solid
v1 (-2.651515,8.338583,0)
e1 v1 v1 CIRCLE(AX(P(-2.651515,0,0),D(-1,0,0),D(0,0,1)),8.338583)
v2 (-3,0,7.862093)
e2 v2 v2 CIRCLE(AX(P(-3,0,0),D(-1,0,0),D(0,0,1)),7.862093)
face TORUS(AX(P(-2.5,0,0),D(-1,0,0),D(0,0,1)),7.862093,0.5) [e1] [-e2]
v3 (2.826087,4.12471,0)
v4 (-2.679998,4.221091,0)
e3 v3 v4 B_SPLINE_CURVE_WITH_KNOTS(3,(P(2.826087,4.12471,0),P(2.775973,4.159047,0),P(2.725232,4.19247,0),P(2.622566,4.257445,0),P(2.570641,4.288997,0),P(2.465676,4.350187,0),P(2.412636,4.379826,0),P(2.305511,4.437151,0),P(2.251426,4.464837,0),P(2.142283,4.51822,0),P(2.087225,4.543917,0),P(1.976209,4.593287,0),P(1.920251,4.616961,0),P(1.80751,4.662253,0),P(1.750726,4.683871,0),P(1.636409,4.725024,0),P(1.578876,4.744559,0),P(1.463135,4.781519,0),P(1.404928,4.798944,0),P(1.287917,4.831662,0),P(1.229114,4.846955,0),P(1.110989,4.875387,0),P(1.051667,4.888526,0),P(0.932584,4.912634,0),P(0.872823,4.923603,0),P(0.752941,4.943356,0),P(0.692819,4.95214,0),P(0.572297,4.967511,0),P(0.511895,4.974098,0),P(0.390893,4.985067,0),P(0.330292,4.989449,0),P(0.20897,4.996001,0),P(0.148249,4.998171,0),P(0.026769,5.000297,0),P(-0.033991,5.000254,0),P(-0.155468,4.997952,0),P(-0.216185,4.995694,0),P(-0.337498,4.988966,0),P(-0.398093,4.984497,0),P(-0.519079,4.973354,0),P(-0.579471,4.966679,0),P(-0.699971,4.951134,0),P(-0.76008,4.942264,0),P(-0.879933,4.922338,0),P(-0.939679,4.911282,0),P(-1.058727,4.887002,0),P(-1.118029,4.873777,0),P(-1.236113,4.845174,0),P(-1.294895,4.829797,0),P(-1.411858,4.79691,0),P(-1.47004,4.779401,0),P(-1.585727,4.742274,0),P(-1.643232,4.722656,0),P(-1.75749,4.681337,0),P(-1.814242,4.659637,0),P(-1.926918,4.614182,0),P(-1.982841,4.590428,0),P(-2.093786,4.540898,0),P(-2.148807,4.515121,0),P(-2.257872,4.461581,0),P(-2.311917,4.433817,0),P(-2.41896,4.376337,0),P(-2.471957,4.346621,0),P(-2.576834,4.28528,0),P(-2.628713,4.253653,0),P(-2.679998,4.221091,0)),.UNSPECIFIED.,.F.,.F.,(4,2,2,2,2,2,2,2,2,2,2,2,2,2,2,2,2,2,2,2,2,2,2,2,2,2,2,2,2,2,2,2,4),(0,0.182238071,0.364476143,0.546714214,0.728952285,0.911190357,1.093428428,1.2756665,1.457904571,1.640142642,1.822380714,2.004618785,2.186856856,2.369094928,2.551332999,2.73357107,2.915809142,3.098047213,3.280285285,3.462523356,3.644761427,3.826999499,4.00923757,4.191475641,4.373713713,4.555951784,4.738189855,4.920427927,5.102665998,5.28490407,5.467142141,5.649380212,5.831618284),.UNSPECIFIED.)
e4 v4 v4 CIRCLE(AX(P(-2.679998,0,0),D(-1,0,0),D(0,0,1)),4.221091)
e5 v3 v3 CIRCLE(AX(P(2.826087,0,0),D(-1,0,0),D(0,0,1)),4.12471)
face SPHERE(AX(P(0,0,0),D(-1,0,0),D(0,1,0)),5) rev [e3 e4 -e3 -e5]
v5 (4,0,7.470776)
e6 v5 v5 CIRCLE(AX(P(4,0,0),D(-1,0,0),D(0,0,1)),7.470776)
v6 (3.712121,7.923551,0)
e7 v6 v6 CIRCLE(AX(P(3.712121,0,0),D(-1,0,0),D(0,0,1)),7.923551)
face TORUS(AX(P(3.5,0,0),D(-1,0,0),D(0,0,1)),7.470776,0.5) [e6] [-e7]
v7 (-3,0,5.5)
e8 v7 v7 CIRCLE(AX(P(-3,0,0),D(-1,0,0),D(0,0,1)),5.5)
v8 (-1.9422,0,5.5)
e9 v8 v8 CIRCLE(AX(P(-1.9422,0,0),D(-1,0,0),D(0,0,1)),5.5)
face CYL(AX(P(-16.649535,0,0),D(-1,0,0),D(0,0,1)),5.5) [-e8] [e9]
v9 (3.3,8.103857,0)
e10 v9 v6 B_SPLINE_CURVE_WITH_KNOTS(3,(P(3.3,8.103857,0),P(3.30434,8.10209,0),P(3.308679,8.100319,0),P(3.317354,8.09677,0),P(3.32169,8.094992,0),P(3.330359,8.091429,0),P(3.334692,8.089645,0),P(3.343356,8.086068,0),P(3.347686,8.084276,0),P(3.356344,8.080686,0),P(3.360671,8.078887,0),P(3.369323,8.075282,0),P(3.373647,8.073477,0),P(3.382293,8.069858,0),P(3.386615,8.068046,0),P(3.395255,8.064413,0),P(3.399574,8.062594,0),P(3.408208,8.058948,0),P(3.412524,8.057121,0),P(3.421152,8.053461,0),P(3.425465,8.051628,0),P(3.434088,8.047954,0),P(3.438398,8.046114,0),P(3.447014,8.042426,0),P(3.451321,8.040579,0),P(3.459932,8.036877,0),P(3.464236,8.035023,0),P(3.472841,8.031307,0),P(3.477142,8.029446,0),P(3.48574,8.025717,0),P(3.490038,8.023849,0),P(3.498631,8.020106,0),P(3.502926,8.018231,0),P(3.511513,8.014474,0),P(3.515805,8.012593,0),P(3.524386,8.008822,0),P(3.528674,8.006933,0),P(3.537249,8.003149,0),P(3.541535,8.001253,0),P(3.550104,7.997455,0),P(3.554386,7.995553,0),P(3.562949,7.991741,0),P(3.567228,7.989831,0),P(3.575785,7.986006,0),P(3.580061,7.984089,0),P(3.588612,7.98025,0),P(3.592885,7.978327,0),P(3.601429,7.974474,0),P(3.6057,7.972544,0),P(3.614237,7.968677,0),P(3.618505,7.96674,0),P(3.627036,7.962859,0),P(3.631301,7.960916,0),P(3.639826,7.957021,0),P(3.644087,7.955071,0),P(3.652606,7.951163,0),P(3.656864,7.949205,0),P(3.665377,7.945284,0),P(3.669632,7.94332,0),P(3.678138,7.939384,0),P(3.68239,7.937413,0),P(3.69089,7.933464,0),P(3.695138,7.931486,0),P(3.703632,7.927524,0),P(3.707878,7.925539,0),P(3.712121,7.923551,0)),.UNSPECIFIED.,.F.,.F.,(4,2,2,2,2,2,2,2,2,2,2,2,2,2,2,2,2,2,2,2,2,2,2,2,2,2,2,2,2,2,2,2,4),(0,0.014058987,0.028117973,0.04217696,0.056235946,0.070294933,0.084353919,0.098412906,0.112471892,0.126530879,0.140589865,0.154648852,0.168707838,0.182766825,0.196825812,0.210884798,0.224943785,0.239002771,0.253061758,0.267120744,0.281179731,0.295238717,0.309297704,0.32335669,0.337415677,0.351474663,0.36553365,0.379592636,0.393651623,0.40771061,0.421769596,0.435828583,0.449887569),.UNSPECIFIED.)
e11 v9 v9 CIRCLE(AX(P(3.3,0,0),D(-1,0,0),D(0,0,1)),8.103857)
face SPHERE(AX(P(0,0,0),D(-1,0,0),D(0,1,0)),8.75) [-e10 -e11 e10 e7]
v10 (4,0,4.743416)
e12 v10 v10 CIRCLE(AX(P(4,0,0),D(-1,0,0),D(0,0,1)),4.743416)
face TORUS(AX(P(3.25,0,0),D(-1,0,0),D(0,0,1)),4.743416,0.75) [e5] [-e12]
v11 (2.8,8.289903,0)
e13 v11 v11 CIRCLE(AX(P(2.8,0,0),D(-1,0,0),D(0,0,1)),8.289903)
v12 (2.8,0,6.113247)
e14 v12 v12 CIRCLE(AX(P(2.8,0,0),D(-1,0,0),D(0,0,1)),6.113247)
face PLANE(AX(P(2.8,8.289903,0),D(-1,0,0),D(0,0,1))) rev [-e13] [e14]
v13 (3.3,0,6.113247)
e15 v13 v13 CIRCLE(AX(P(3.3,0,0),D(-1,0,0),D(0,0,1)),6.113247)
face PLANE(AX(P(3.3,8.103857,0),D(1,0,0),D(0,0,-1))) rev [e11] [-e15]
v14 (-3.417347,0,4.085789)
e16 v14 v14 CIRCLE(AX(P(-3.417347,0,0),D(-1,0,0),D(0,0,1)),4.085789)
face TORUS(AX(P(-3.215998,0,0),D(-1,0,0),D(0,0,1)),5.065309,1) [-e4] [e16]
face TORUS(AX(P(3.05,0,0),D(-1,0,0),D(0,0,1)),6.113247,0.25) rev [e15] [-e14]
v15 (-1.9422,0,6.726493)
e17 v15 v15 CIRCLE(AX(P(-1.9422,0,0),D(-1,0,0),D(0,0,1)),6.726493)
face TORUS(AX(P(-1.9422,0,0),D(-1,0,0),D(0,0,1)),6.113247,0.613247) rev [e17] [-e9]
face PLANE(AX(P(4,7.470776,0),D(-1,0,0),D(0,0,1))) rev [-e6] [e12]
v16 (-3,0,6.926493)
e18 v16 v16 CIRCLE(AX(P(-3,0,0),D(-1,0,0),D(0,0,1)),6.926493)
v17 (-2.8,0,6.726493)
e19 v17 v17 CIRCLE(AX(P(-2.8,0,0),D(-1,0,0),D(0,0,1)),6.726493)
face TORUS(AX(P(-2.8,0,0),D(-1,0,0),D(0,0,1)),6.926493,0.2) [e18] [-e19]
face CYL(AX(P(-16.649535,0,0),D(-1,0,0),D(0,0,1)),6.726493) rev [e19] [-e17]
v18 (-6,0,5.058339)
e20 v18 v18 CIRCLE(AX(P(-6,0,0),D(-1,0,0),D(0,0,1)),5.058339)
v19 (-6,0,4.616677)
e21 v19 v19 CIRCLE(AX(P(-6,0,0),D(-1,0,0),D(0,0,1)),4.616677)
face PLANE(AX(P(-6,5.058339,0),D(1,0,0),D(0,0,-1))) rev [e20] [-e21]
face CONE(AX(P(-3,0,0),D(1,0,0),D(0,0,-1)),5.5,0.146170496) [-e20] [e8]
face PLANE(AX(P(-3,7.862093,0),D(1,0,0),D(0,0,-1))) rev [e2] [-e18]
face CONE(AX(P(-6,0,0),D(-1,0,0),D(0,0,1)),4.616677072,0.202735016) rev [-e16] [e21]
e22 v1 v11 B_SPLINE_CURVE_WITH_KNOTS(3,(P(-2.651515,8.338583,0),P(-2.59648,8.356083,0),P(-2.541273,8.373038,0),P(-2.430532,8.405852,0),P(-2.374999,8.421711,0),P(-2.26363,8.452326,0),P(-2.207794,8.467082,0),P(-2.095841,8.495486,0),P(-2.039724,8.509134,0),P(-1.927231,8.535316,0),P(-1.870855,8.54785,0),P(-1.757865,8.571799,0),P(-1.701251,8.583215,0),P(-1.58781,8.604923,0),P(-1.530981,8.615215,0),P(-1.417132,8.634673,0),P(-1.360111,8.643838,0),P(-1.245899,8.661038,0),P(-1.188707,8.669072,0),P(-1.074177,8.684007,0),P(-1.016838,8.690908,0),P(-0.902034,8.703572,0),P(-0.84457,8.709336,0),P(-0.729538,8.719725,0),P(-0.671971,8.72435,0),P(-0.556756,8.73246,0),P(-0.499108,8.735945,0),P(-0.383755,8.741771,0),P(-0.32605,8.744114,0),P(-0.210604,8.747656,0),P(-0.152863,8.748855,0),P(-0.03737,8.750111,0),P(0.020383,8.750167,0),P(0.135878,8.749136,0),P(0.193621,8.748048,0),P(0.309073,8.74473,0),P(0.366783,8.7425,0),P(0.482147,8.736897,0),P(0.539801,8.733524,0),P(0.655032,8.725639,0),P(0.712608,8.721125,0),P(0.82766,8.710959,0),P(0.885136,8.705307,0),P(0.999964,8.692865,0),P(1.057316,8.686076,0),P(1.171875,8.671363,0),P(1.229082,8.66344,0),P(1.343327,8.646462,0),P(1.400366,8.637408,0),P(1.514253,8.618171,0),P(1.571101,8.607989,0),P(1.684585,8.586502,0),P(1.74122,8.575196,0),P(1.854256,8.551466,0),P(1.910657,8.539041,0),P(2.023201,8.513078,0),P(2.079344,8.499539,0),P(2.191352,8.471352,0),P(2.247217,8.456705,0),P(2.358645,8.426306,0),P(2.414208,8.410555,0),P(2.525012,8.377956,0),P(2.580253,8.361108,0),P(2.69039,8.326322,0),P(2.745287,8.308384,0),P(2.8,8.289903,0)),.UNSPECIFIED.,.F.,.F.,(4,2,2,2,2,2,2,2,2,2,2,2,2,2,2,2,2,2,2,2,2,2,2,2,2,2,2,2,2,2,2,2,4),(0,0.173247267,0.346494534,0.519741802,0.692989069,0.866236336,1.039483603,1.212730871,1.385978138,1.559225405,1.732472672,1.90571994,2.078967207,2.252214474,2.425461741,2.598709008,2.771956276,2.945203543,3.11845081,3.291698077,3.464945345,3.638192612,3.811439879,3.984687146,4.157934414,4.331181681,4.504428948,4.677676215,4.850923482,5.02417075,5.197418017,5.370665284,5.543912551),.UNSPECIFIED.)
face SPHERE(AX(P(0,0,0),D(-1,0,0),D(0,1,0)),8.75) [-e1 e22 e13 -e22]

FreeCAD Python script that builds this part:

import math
import FreeCAD as App
import Part
import Sketcher
from FreeCAD import Vector
Q = App.Units.Quantity

doc = App.newDocument("Part")
params = doc.addObject("Spreadsheet::Sheet", "Params")
for row, (alias, value) in enumerate([
    ("sketch1_radius", "1 mm"),
    ("sketch1_radius2", "5 mm"),
    ("sketch1_radius3", "0.5 mm"),
    ("sketch1_radius4", "0.2 mm"),
    ("sketch1_radius5", "0.75 mm"),
    ("revolution_angle", "360 deg"),
], start=1):
    params.set(f"A{row}", alias)
    params.set(f"B{row}", "=" + value)
    params.setAlias(f"B{row}", alias)

body = doc.addObject("PartDesign::Body", "Body")

sketch1 = doc.addObject("Sketcher::SketchObject", "Sketch")
body.addObject(sketch1)
sketch1.AttachmentSupport = (doc.XY_Plane, [""])
sketch1.MapMode = "FlatFace"
sketch1.addGeometry(Part.LineSegment(Vector(-6, 5.058339, 0), Vector(-6, 4.616677, 0)), False)
sketch1.addGeometry(Part.LineSegment(Vector(-6, 4.616677, 0), Vector(-3.417347, 4.085789, 0)), False)
sketch1.addGeometry(Part.ArcOfCircle(Part.Circle(Vector(-3.215998, 5.065309, 0), Vector(0, 0, 1), 1), math.radians(-101.615861), math.radians(-57.588266)), False)
sketch1.addGeometry(Part.ArcOfCircle(Part.Circle(Vector(0, 0, 0), Vector(0, 0, 1), 5), math.radians(55.582611), math.radians(122.411734)), False)
sketch1.addGeometry(Part.ArcOfCircle(Part.Circle(Vector(3.25, 4.743416, 0), Vector(0, 0, 1), 0.75), math.radians(-124.417389), math.radians(0)), False)
sketch1.addGeometry(Part.LineSegment(Vector(4, 4.743416, 0), Vector(4, 7.470776, 0)), False)
sketch1.addGeometry(Part.ArcOfCircle(Part.Circle(Vector(3.5, 7.470776, 0), Vector(0, 0, 1), 0.5), math.radians(0), math.radians(64.897279)), False)
sketch1.addGeometry(Part.ArcOfCircle(Part.Circle(Vector(0, 0.000001, 0), Vector(0, 0, 1), 8.749999), math.radians(64.897279), math.radians(67.843184)), False)
sketch1.addGeometry(Part.LineSegment(Vector(3.3, 8.103857, 0), Vector(3.3, 6.113247, 0)), False)
sketch1.addGeometry(Part.ArcOfCircle(Part.Circle(Vector(3.05, 6.113247, 0), Vector(0, 0, 1), 0.25), math.radians(180), math.radians(360)), False)
sketch1.addGeometry(Part.LineSegment(Vector(2.8, 6.113247, 0), Vector(2.8, 8.289903, 0)), False)
sketch1.addGeometry(Part.ArcOfCircle(Part.Circle(Vector(0, 0, 0), Vector(0, 0, 1), 8.75), math.radians(71.337075), math.radians(107.639701)), False)
sketch1.addGeometry(Part.ArcOfCircle(Part.Circle(Vector(-2.5, 7.862093, 0), Vector(0, 0, 1), 0.5), math.radians(107.639702), math.radians(180)), False)
sketch1.addGeometry(Part.LineSegment(Vector(-3, 7.862093, 0), Vector(-3, 6.926493, 0)), False)
sketch1.addGeometry(Part.ArcOfCircle(Part.Circle(Vector(-2.8, 6.926493, 0), Vector(0, 0, 1), 0.2), math.radians(-180), math.radians(-90)), False)
sketch1.addGeometry(Part.LineSegment(Vector(-2.8, 6.726493, 0), Vector(-1.9422, 6.726493, 0)), False)
sketch1.addGeometry(Part.ArcOfCircle(Part.Circle(Vector(-1.9422, 6.113247, 0), Vector(0, 0, 1), 0.613247), math.radians(-90), math.radians(90)), False)
sketch1.addGeometry(Part.LineSegment(Vector(-1.9422, 5.5, 0), Vector(-3, 5.5, 0)), False)
sketch1.addGeometry(Part.LineSegment(Vector(-3, 5.5, 0), Vector(-6, 5.058339, 0)), False)
sketch1.addConstraint(Sketcher.Constraint("Coincident", 0, 2, 1, 1))
sketch1.addConstraint(Sketcher.Constraint("Tangent", 1, 2, 2, 1))
sketch1.addConstraint(Sketcher.Constraint("Tangent", 2, 2, 3, 2))
sketch1.addConstraint(Sketcher.Constraint("Tangent", 3, 1, 4, 1))
sketch1.addConstraint(Sketcher.Constraint("Tangent", 4, 2, 5, 1))
sketch1.addConstraint(Sketcher.Constraint("Tangent", 5, 2, 6, 1))
sketch1.addConstraint(Sketcher.Constraint("Tangent", 6, 2, 7, 1))
sketch1.addConstraint(Sketcher.Constraint("Coincident", 7, 2, 8, 1))
sketch1.addConstraint(Sketcher.Constraint("Tangent", 8, 2, 9, 2))
sketch1.addConstraint(Sketcher.Constraint("Tangent", 9, 1, 10, 1))
sketch1.addConstraint(Sketcher.Constraint("Coincident", 10, 2, 11, 1))
sketch1.addConstraint(Sketcher.Constraint("Tangent", 11, 2, 12, 1))
sketch1.addConstraint(Sketcher.Constraint("Tangent", 12, 2, 13, 1))
sketch1.addConstraint(Sketcher.Constraint("Tangent", 13, 2, 14, 1))
sketch1.addConstraint(Sketcher.Constraint("Tangent", 14, 2, 15, 1))
sketch1.addConstraint(Sketcher.Constraint("Tangent", 15, 2, 16, 2))
sketch1.addConstraint(Sketcher.Constraint("Tangent", 16, 1, 17, 1))
sketch1.addConstraint(Sketcher.Constraint("Coincident", 17, 2, 18, 1))
sketch1.addConstraint(Sketcher.Constraint("Coincident", 18, 2, 0, 1))
sketch1.addConstraint(Sketcher.Constraint("Vertical", 0))
sketch1.addConstraint(Sketcher.Constraint("Vertical", 5))
sketch1.addConstraint(Sketcher.Constraint("Vertical", 8))
sketch1.addConstraint(Sketcher.Constraint("Vertical", 10))
sketch1.addConstraint(Sketcher.Constraint("Vertical", 13))
sketch1.addConstraint(Sketcher.Constraint("Horizontal", 15))
sketch1.addConstraint(Sketcher.Constraint("Horizontal", 17))
sketch1.addConstraint(Sketcher.Constraint("Coincident", 3, 3, -1, 1))
sketch1.addConstraint(Sketcher.Constraint("Coincident", 7, 3, -1, 1))
sketch1.addConstraint(Sketcher.Constraint("Coincident", 11, 3, -1, 1))
sketch1.addConstraint(Sketcher.Constraint("Equal", 7, 11))
sketch1.addConstraint(Sketcher.Constraint("Equal", 6, 12))
sketch1.addConstraint(Sketcher.Constraint("Horizontal", 9, 3, 16, 3))
sketch1.addConstraint(Sketcher.Constraint("Vertical", 13, 2, 17, 2))
sketch1.addConstraint(Sketcher.Constraint("Radius", 2, Q("1 mm")))
sketch1.addConstraint(Sketcher.Constraint("Radius", 3, Q("5 mm")))
sketch1.addConstraint(Sketcher.Constraint("Radius", 6, Q("0.5 mm")))
sketch1.addConstraint(Sketcher.Constraint("Radius", 14, Q("0.2 mm")))
sketch1.addConstraint(Sketcher.Constraint("Radius", 4, Q("0.75 mm")))
sketch1.addConstraint(Sketcher.Constraint("Radius", 7, Q("8.749999 mm")))
sketch1.addConstraint(Sketcher.Constraint("Radius", 9, Q("0.25 mm")))
sketch1.addConstraint(Sketcher.Constraint("DistanceX", 0, 2, -1, 1, Q("6 mm")))
sketch1.addConstraint(Sketcher.Constraint("DistanceX", -1, 1, 4, 2, Q("4 mm")))
sketch1.addConstraint(Sketcher.Constraint("DistanceX", 12, 2, -1, 1, Q("3 mm")))
sketch1.addConstraint(Sketcher.Constraint("DistanceX", -1, 1, 7, 2, Q("3.3 mm")))
sketch1.addConstraint(Sketcher.Constraint("DistanceY", -1, 1, 16, 1, Q("5.5 mm")))
sketch1.addConstraint(Sketcher.Constraint("DistanceX", 2, 2, -1, 1, Q("2.679998 mm")))
sketch1.addConstraint(Sketcher.Constraint("DistanceX", 15, 1, 15, 2, Q("0.8578 mm")))
sketch1.addConstraint(Sketcher.Constraint("DistanceY", 13, 2, 13, 1, Q("0.935599 mm")))
sketch1.addConstraint(Sketcher.Constraint("DistanceY", 0, 2, 0, 1, Q("0.441661 mm")))
sketch1.addConstraint(Sketcher.Constraint("DistanceY", 1, 2, 2, 2, Q("0.135301 mm")))
sketch1.setExpression("Constraints[33]", "Params.sketch1_radius")
sketch1.setExpression("Constraints[34]", "Params.sketch1_radius2")
sketch1.setExpression("Constraints[35]", "Params.sketch1_radius3")
sketch1.setExpression("Constraints[36]", "Params.sketch1_radius4")
sketch1.setExpression("Constraints[37]", "Params.sketch1_radius5")
revolution = doc.addObject("PartDesign::Revolution", "Revolution")
body.addObject(revolution)
revolution.Profile = sketch1
revolution.ReferenceAxis = (sketch1, ["H_Axis"])
revolution.setExpression("Angle", "Params.revolution_angle")

doc.recompute()
